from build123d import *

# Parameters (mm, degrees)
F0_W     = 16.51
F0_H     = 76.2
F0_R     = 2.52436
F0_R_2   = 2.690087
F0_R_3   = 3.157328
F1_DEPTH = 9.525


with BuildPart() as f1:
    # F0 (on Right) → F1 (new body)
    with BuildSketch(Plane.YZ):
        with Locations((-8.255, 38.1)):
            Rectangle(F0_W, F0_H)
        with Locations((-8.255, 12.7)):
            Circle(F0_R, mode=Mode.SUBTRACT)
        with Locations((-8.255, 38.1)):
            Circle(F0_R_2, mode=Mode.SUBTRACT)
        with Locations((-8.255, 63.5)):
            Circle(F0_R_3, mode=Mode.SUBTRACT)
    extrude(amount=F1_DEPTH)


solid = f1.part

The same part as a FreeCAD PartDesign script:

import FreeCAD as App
import Part
import Sketcher
from FreeCAD import Vector
Q = App.Units.Quantity

doc = App.newDocument("Part")
body = doc.addObject("PartDesign::Body", "Body")

sketch1 = doc.addObject("Sketcher::SketchObject", "Sketch")
body.addObject(sketch1)
sketch1.AttachmentSupport = (doc.YZ_Plane, [""])
sketch1.MapMode = "FlatFace"
sketch1.addGeometry(Part.LineSegment(Vector(-16.5, 76.2, 0), Vector(-16.5, 0, 0)), False)
sketch1.addGeometry(Part.LineSegment(Vector(-16.5, 0, 0), Vector(0, 0, 0)), False)
sketch1.addGeometry(Part.LineSegment(Vector(0, 0, 0), Vector(0, 76.2, 0)), False)
sketch1.addGeometry(Part.LineSegment(Vector(0, 76.2, 0), Vector(-16.5, 76.2, 0)), False)
sketch1.addGeometry(Part.Circle(Vector(-8.3, 12.7, 0), Vector(0, 0, 1), 2.5), False)
sketch1.addGeometry(Part.Circle(Vector(-8.3, 38.1, 0), Vector(0, 0, 1), 2.7), False)
sketch1.addGeometry(Part.Circle(Vector(-8.3, 63.5, 0), Vector(0, 0, 1), 3.2), False)
sketch1.addConstraint(Sketcher.Constraint("Coincident", 0, 2, 1, 1))
sketch1.addConstraint(Sketcher.Constraint("Coincident", 1, 2, 2, 1))
sketch1.addConstraint(Sketcher.Constraint("Coincident", 2, 2, 3, 1))
sketch1.addConstraint(Sketcher.Constraint("Coincident", 3, 2, 0, 1))
sketch1.addConstraint(Sketcher.Constraint("Vertical", 0))
sketch1.addConstraint(Sketcher.Constraint("Horizontal", 1))
sketch1.addConstraint(Sketcher.Constraint("Vertical", 2))
sketch1.addConstraint(Sketcher.Constraint("Horizontal", 3))
sketch1.addConstraint(Sketcher.Constraint("Coincident", 1, 2, -1, 1))
sketch1.addConstraint(Sketcher.Constraint("Vertical", 4, 3, 5, 3))
sketch1.addConstraint(Sketcher.Constraint("Vertical", 5, 3, 6, 3))
sketch1.addConstraint(Sketcher.Constraint("DistanceY", 0, 2, 0, 1, Q("3 in")))
sketch1.addConstraint(Sketcher.Constraint("DistanceY", 4, 3, 5, 3, Q("1 in")))
sketch1.addConstraint(Sketcher.Constraint("DistanceY", 5, 3, 6, 3, Q("1 in")))
sketch1.addConstraint(Sketcher.Constraint("DistanceX", 1, 1, 1, 2, Q("0.65 in")))
sketch1.addConstraint(Sketcher.Constraint("DistanceY", -1, 1, 4, 3, Q("0.5 in")))
sketch1.addConstraint(Sketcher.Constraint("Diameter", 4, Q("5.04872 mm")))
sketch1.addConstraint(Sketcher.Constraint("DistanceX", 4, 3, -1, 1, Q("0.325 in")))
sketch1.addConstraint(Sketcher.Constraint("Diameter", 5, Q("5.380174 mm")))
sketch1.addConstraint(Sketcher.Constraint("Diameter", 6, Q("6.314656 mm")))
pad1 = doc.addObject("PartDesign::Pad", "Pad")
body.addObject(pad1)
pad1.Profile = sketch1
pad1.Length = Q("0.375 in")

doc.recompute()
